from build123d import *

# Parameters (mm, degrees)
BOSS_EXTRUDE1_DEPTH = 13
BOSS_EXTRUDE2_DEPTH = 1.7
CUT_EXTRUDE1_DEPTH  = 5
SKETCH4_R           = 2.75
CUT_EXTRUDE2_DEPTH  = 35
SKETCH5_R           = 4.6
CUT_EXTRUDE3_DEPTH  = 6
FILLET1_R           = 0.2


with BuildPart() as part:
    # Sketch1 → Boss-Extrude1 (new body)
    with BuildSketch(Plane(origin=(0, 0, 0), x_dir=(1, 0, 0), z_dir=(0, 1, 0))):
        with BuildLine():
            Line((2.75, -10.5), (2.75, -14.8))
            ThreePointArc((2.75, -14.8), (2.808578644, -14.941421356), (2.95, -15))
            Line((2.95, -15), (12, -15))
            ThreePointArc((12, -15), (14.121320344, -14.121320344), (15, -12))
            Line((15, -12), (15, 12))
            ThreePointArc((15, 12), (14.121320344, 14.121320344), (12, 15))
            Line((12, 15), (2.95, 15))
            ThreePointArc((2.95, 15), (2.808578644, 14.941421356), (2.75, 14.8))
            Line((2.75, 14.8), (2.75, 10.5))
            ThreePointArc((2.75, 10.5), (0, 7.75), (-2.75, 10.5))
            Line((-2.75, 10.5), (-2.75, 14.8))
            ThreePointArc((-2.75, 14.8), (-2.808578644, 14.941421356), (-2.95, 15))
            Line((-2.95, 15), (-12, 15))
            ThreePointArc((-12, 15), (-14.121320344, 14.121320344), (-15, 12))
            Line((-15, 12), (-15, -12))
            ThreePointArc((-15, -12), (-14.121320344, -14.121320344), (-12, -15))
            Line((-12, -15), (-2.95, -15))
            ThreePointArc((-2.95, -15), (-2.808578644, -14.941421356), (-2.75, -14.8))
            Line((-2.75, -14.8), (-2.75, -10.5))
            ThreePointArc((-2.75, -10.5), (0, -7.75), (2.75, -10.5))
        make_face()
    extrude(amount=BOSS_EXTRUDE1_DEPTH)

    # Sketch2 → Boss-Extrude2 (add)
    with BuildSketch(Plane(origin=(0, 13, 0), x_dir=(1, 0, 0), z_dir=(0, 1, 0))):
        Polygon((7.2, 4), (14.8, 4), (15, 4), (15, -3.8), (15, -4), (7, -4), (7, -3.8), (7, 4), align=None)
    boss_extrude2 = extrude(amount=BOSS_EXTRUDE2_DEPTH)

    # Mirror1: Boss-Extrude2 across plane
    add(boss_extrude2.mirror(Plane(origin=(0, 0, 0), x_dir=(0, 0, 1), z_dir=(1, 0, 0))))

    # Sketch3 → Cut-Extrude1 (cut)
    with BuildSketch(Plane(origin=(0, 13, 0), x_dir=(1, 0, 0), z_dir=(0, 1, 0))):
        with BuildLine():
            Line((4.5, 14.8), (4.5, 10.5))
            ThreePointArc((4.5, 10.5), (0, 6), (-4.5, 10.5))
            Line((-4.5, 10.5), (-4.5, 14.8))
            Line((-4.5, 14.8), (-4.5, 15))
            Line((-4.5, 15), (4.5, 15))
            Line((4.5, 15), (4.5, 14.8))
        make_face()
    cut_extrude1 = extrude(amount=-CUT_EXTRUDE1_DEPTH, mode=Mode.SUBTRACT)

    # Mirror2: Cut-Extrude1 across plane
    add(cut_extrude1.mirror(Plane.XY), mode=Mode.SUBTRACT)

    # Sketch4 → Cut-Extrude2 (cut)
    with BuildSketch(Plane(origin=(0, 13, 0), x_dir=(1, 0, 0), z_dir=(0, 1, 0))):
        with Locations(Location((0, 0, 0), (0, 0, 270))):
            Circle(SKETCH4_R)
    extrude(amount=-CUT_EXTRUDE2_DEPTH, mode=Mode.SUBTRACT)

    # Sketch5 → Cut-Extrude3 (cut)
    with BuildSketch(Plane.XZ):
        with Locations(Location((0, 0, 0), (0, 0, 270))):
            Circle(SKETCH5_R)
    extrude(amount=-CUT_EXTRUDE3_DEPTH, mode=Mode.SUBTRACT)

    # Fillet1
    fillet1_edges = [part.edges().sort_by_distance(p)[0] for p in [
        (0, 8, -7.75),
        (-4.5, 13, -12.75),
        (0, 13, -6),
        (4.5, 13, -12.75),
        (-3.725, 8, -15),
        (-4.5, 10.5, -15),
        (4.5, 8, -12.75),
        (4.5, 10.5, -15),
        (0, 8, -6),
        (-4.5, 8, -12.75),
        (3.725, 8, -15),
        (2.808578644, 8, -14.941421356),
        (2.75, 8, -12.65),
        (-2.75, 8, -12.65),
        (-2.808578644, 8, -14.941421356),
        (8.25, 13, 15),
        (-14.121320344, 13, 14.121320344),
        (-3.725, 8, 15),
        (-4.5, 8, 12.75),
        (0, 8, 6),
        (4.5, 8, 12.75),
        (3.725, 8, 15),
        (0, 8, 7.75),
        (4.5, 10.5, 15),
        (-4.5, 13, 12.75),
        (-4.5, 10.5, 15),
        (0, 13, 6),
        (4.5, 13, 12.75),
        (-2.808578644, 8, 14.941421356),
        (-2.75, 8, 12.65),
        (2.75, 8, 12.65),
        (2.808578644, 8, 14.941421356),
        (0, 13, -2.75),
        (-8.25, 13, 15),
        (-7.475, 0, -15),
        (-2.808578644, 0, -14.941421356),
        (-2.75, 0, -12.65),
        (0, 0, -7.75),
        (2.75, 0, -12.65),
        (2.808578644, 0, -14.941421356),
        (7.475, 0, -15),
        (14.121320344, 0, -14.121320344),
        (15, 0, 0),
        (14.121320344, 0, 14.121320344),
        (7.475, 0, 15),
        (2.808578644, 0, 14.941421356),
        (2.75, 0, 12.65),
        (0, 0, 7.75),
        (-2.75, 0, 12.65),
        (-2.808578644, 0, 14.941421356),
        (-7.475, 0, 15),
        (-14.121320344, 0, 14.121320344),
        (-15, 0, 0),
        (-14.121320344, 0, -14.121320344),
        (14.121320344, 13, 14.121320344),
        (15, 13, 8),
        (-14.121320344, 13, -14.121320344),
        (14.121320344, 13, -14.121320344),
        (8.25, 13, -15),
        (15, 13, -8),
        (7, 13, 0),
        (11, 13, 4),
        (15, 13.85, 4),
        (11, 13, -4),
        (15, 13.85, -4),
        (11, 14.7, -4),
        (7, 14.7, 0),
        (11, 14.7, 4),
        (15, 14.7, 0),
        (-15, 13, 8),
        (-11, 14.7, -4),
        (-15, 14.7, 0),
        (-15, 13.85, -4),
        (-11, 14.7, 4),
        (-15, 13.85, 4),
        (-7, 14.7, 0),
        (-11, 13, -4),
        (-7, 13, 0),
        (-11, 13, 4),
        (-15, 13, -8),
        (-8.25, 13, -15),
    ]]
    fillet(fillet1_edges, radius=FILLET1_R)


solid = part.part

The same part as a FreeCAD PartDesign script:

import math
import FreeCAD as App
import Part
import Sketcher
Q = App.Units.Quantity


def edges_at(feature, points):
    """Names of the edges that pass closest to the given points."""
    edges = feature.Shape.Edges
    near = lambda p: min(range(len(edges)), key=lambda i: edges[i].distToShape(Part.Vertex(*p))[0])
    return sorted({f"Edge{near(p) + 1}" for p in points})


def add_polygon(sketch, points):
    """Adds a closed chain of lines whose ends are joined by coincident constraints."""
    first, n = sketch.GeometryCount, len(points)
    for a, b in zip(points, points[1:] + points[:1]):
        sketch.addGeometry(Part.LineSegment(App.Vector(*a, 0), App.Vector(*b, 0)), False)
    for i in range(n):
        sketch.addConstraint(Sketcher.Constraint("Coincident", first + i, 2, first + (i + 1) % n, 1))

doc = App.newDocument("Part")
body = doc.addObject("PartDesign::Body", "Body")

# Sketch on XZ plane
sketch1 = body.newObject("Sketcher::SketchObject", "Sketch")
sketch1.AttachmentSupport = (doc.getObject("XZ_Plane"), [""])
sketch1.MapMode = "FlatFace"
sketch1.addGeometry(Part.LineSegment(App.Vector(2.75, 10.5, 0), App.Vector(2.75, 14.8, 0)), False)
sketch1.addGeometry(Part.ArcOfCircle(Part.Circle(App.Vector(2.95, 14.8, 0), App.Vector(0, 0, 1), 0.2), math.radians(90), math.radians(180)), False)
sketch1.addGeometry(Part.LineSegment(App.Vector(2.95, 15, 0), App.Vector(12, 15, 0)), False)
sketch1.addGeometry(Part.ArcOfCircle(Part.Circle(App.Vector(12, 12, 0), App.Vector(0, 0, 1), 3), math.radians(0), math.radians(90)), False)
sketch1.addGeometry(Part.LineSegment(App.Vector(15, 12, 0), App.Vector(15, -12, 0)), False)
sketch1.addGeometry(Part.ArcOfCircle(Part.Circle(App.Vector(12, -12, 0), App.Vector(0, 0, 1), 3), math.radians(-90), math.radians(0)), False)
sketch1.addGeometry(Part.LineSegment(App.Vector(12, -15, 0), App.Vector(2.95, -15, 0)), False)
sketch1.addGeometry(Part.ArcOfCircle(Part.Circle(App.Vector(2.95, -14.8, 0), App.Vector(0, 0, 1), 0.2), math.radians(-180), math.radians(-90)), False)
sketch1.addGeometry(Part.LineSegment(App.Vector(2.75, -14.8, 0), App.Vector(2.75, -10.5, 0)), False)
sketch1.addGeometry(Part.ArcOfCircle(Part.Circle(App.Vector(0, -10.5, 0), App.Vector(0, 0, 1), 2.75), math.radians(0), math.radians(180)), False)
sketch1.addGeometry(Part.LineSegment(App.Vector(-2.75, -10.5, 0), App.Vector(-2.75, -14.8, 0)), False)
sketch1.addGeometry(Part.ArcOfCircle(Part.Circle(App.Vector(-2.95, -14.8, 0), App.Vector(0, 0, 1), 0.2), math.radians(-90), math.radians(0)), False)
sketch1.addGeometry(Part.LineSegment(App.Vector(-2.95, -15, 0), App.Vector(-12, -15, 0)), False)
sketch1.addGeometry(Part.ArcOfCircle(Part.Circle(App.Vector(-12, -12, 0), App.Vector(0, 0, 1), 3), math.radians(180), math.radians(270)), False)
sketch1.addGeometry(Part.LineSegment(App.Vector(-15, -12, 0), App.Vector(-15, 12, 0)), False)
sketch1.addGeometry(Part.ArcOfCircle(Part.Circle(App.Vector(-12, 12, 0), App.Vector(0, 0, 1), 3), math.radians(90), math.radians(180)), False)
sketch1.addGeometry(Part.LineSegment(App.Vector(-12, 15, 0), App.Vector(-2.95, 15, 0)), False)
sketch1.addGeometry(Part.ArcOfCircle(Part.Circle(App.Vector(-2.95, 14.8, 0), App.Vector(0, 0, 1), 0.2), math.radians(0), math.radians(90)), False)
sketch1.addGeometry(Part.LineSegment(App.Vector(-2.75, 14.8, 0), App.Vector(-2.75, 10.5, 0)), False)
sketch1.addGeometry(Part.ArcOfCircle(Part.Circle(App.Vector(0, 10.5, 0), App.Vector(0, 0, 1), 2.75), math.radians(180), math.radians(360)), False)
sketch1.addConstraint(Sketcher.Constraint("Tangent", 0, 2, 1, 2))
sketch1.addConstraint(Sketcher.Constraint("Tangent", 1, 1, 2, 1))
sketch1.addConstraint(Sketcher.Constraint("Tangent", 2, 2, 3, 2))
sketch1.addConstraint(Sketcher.Constraint("Tangent", 3, 1, 4, 1))
sketch1.addConstraint(Sketcher.Constraint("Tangent", 4, 2, 5, 2))
sketch1.addConstraint(Sketcher.Constraint("Tangent", 5, 1, 6, 1))
sketch1.addConstraint(Sketcher.Constraint("Tangent", 6, 2, 7, 2))
sketch1.addConstraint(Sketcher.Constraint("Tangent", 7, 1, 8, 1))
sketch1.addConstraint(Sketcher.Constraint("Tangent", 8, 2, 9, 1))
sketch1.addConstraint(Sketcher.Constraint("Tangent", 9, 2, 10, 1))
sketch1.addConstraint(Sketcher.Constraint("Tangent", 10, 2, 11, 2))
sketch1.addConstraint(Sketcher.Constraint("Tangent", 11, 1, 12, 1))
sketch1.addConstraint(Sketcher.Constraint("Tangent", 12, 2, 13, 2))
sketch1.addConstraint(Sketcher.Constraint("Tangent", 13, 1, 14, 1))
sketch1.addConstraint(Sketcher.Constraint("Tangent", 14, 2, 15, 2))
sketch1.addConstraint(Sketcher.Constraint("Tangent", 15, 1, 16, 1))
sketch1.addConstraint(Sketcher.Constraint("Tangent", 16, 2, 17, 2))
sketch1.addConstraint(Sketcher.Constraint("Tangent", 17, 1, 18, 1))
sketch1.addConstraint(Sketcher.Constraint("Tangent", 18, 2, 19, 1))
sketch1.addConstraint(Sketcher.Constraint("Tangent", 19, 2, 0, 1))
sketch1.addConstraint(Sketcher.Constraint("Vertical", 0))
sketch1.addConstraint(Sketcher.Constraint("Horizontal", 2))
sketch1.addConstraint(Sketcher.Constraint("Vertical", 4))
sketch1.addConstraint(Sketcher.Constraint("Horizontal", 6))
sketch1.addConstraint(Sketcher.Constraint("Vertical", 8))
sketch1.addConstraint(Sketcher.Constraint("Vertical", 10))
sketch1.addConstraint(Sketcher.Constraint("Horizontal", 12))
sketch1.addConstraint(Sketcher.Constraint("Vertical", 14))
sketch1.addConstraint(Sketcher.Constraint("Horizontal", 16))
sketch1.addConstraint(Sketcher.Constraint("Vertical", 18))
sketch1.addConstraint(Sketcher.Constraint("Equal", 3, 5))
sketch1.addConstraint(Sketcher.Constraint("Equal", 1, 7))
sketch1.addConstraint(Sketcher.Constraint("Equal", 7, 11))
sketch1.addConstraint(Sketcher.Constraint("Equal", 5, 13))
sketch1.addConstraint(Sketcher.Constraint("Equal", 13, 15))
sketch1.addConstraint(Sketcher.Constraint("Equal", 11, 17))
sketch1.addConstraint(Sketcher.Constraint("Equal", 9, 19))
sketch1.addConstraint(Sketcher.Constraint("Symmetric", 1, 3, 11, 3, -1, 1))
sketch1.addConstraint(Sketcher.Constraint("Symmetric", 5, 3, 15, 3, -1, 1))
sketch1.addConstraint(Sketcher.Constraint("Symmetric", 7, 3, 11, 3, -2))
sketch1.addConstraint(Sketcher.Constraint("Equal", 0, 8))
sketch1.addConstraint(Sketcher.Constraint("Radius", 3, Q("3 mm")))
sketch1.addConstraint(Sketcher.Constraint("Radius", 1, Q("0.2 mm")))
sketch1.addConstraint(Sketcher.Constraint("DistanceY", 4, 2, 4, 1, Q("24 mm")))
sketch1.addConstraint(Sketcher.Constraint("Radius", 9, Q("2.75 mm")))
sketch1.addConstraint(Sketcher.Constraint("DistanceY", 0, 1, 0, 2, Q("4.3 mm")))
sketch1.addConstraint(Sketcher.Constraint("DistanceX", -1, 1, 3, 3, Q("12 mm")))
pad1 = body.newObject("PartDesign::Pad", "Pad")
pad1.Profile = sketch1
pad1.Length = 13
pad1.Reversed = True

# Sketch on XZ plane
sketch2 = body.newObject("Sketcher::SketchObject", "Sketch001")
sketch2.AttachmentSupport = (doc.getObject("XZ_Plane"), [""])
sketch2.MapMode = "FlatFace"
sketch2.AttachmentOffset = App.Placement(App.Vector(0, 0, -13), App.Rotation())
add_polygon(sketch2, [(15, -4), (7, -4), (7, 4), (15, 4)])  # lines 0-3
sketch2.addConstraint(Sketcher.Constraint("Horizontal", 0))
sketch2.addConstraint(Sketcher.Constraint("Vertical", 1))
sketch2.addConstraint(Sketcher.Constraint("Horizontal", 2))
sketch2.addConstraint(Sketcher.Constraint("Vertical", 3))
sketch2.addConstraint(Sketcher.Constraint("Equal", 2, 1))
sketch2.addConstraint(Sketcher.Constraint("DistanceX", 0, 2, 0, 1, Q("8 mm")))
sketch2.addConstraint(Sketcher.Constraint("DistanceX", -1, 1, 0, 2, Q("7 mm")))
sketch2.addConstraint(Sketcher.Constraint("DistanceY", 0, 2, -1, 1, Q("4 mm")))
pad2 = body.newObject("PartDesign::Pad", "Pad001")
pad2.Profile = sketch2
pad2.Length = 1.7
pad2.Reversed = True
doc.recompute()

mirrored = body.newObject("PartDesign::Mirrored", "Mirrored")
mirrored.Originals = [pad2]
mirrored.MirrorPlane = (doc.getObject("YZ_Plane"), [""])
body.Tip = mirrored

# Sketch on XZ plane
sketch3 = body.newObject("Sketcher::SketchObject", "Sketch002")
sketch3.AttachmentSupport = (doc.getObject("XZ_Plane"), [""])
sketch3.MapMode = "FlatFace"
sketch3.AttachmentOffset = App.Placement(App.Vector(0, 0, -13), App.Rotation())
sketch3.addGeometry(Part.ArcOfCircle(Part.Circle(App.Vector(0, -10.5, 0), App.Vector(0, 0, 1), 4.5), math.radians(0), math.radians(180)), False)
sketch3.addGeometry(Part.LineSegment(App.Vector(4.5, -10.5, 0), App.Vector(4.5, -15, 0)), False)
sketch3.addGeometry(Part.LineSegment(App.Vector(4.5, -15, 0), App.Vector(-4.5, -15, 0)), False)
sketch3.addGeometry(Part.LineSegment(App.Vector(-4.5, -15, 0), App.Vector(-4.5, -10.5, 0)), False)
sketch3.addConstraint(Sketcher.Constraint("Tangent", 0, 1, 1, 1))
sketch3.addConstraint(Sketcher.Constraint("Coincident", 1, 2, 2, 1))
sketch3.addConstraint(Sketcher.Constraint("Coincident", 2, 2, 3, 1))
sketch3.addConstraint(Sketcher.Constraint("Tangent", 3, 2, 0, 2))
sketch3.addConstraint(Sketcher.Constraint("Vertical", 1))
sketch3.addConstraint(Sketcher.Constraint("Horizontal", 2))
sketch3.addConstraint(Sketcher.Constraint("Vertical", 3))
sketch3.addConstraint(Sketcher.Constraint("PointOnObject", 0, 3, -2))
sketch3.addConstraint(Sketcher.Constraint("Radius", 0, Q("4.5 mm")))
sketch3.addConstraint(Sketcher.Constraint("DistanceY", 1, 2, 1, 1, Q("4.5 mm")))
sketch3.addConstraint(Sketcher.Constraint("DistanceY", 1, 2, -1, 1, Q("15 mm")))
pocket1 = body.newObject("PartDesign::Pocket", "Pocket")
pocket1.Profile = sketch3
pocket1.Length = 5
pocket1.Reversed = True
doc.recompute()

mirrored2 = body.newObject("PartDesign::Mirrored", "Mirrored001")
mirrored2.Originals = [pocket1]
mirrored2.MirrorPlane = (doc.getObject("XY_Plane"), [""])
body.Tip = mirrored2

# Sketch on XZ plane
sketch4 = body.newObject("Sketcher::SketchObject", "Sketch003")
sketch4.AttachmentSupport = (doc.getObject("XZ_Plane"), [""])
sketch4.MapMode = "FlatFace"
sketch4.AttachmentOffset = App.Placement(App.Vector(0, 0, -13), App.Rotation())
sketch4.addGeometry(Part.Circle(App.Vector(0, 0, 0), App.Vector(0, 0, 1), 2.8), False)
sketch4.addConstraint(Sketcher.Constraint("Coincident", 0, 3, -1, 1))
sketch4.addConstraint(Sketcher.Constraint("Diameter", 0, Q("5.5 mm")))
pocket2 = body.newObject("PartDesign::Pocket", "Pocket001")
pocket2.Profile = sketch4
pocket2.Length = 35
pocket2.Reversed = True

# Sketch on XZ plane
sketch5 = body.newObject("Sketcher::SketchObject", "Sketch004")
sketch5.AttachmentSupport = (doc.getObject("XZ_Plane"), [""])
sketch5.MapMode = "FlatFace"
sketch5.addGeometry(Part.Circle(App.Vector(0, 0, 0), App.Vector(0, 0, 1), 4.6), False)
sketch5.addConstraint(Sketcher.Constraint("Coincident", 0, 3, -1, 1))
sketch5.addConstraint(Sketcher.Constraint("Diameter", 0, Q("9.2 mm")))
pocket3 = body.newObject("PartDesign::Pocket", "Pocket002")
pocket3.Profile = sketch5
pocket3.Length = 6
doc.recompute()

fillet = body.newObject("PartDesign::Fillet", "Fillet")
fillet.Base = (pocket3, edges_at(pocket3, [
    (0, 8, -7.75),
    (-4.5, 13, -12.75),
    (0, 13, -6),
    (4.5, 13, -12.75),
    (-3.725, 8, -15),
    (-4.5, 10.5, -15),
    (4.5, 8, -12.75),
    (4.5, 10.5, -15),
    (0, 8, -6),
    (-4.5, 8, -12.75),
    (3.725, 8, -15),
    (2.809, 8, -14.941),
    (2.75, 8, -12.65),
    (-2.75, 8, -12.65),
    (-2.809, 8, -14.941),
    (8.25, 13, 15),
    (-14.121, 13, 14.121),
    (-3.725, 8, 15),
    (-4.5, 8, 12.75),
    (0, 8, 6),
    (4.5, 8, 12.75),
    (3.725, 8, 15),
    (0, 8, 7.75),
    (4.5, 10.5, 15),
    (-4.5, 13, 12.75),
    (-4.5, 10.5, 15),
    (0, 13, 6),
    (4.5, 13, 12.75),
    (-2.809, 8, 14.941),
    (-2.75, 8, 12.65),
    (2.75, 8, 12.65),
    (2.809, 8, 14.941),
    (0, 13, -2.75),
    (-8.25, 13, 15),
    (-7.475, 0, -15),
    (-2.809, 0, -14.941),
    (-2.75, 0, -12.65),
    (0, 0, -7.75),
    (2.75, 0, -12.65),
    (2.809, 0, -14.941),
    (7.475, 0, -15),
    (14.121, 0, -14.121),
    (15, 0, 0),
    (14.121, 0, 14.121),
    (7.475, 0, 15),
    (2.809, 0, 14.941),
    (2.75, 0, 12.65),
    (0, 0, 7.75),
    (-2.75, 0, 12.65),
    (-2.809, 0, 14.941),
    (-7.475, 0, 15),
    (-14.121, 0, 14.121),
    (-15, 0, 0),
    (-14.121, 0, -14.121),
    (14.121, 13, 14.121),
    (15, 13, 8),
    (-14.121, 13, -14.121),
    (14.121, 13, -14.121),
    (8.25, 13, -15),
    (15, 13, -8),
    (7, 13, 0),
    (11, 13, 4),
    (15, 13.85, 4),
    (11, 13, -4),
    (15, 13.85, -4),
    (11, 14.7, -4),
    (7, 14.7, 0),
    (11, 14.7, 4),
    (15, 14.7, 0),
    (-15, 13, 8),
    (-11, 14.7, -4),
    (-15, 14.7, 0),
    (-15, 13.85, -4),
    (-11, 14.7, 4),
    (-15, 13.85, 4),
    (-7, 14.7, 0),
    (-11, 13, -4),
    (-7, 13, 0),
    (-11, 13, 4),
    (-15, 13, -8),
    (-8.25, 13, -15),
]))
fillet.Radius = 0.2

doc.recompute()
